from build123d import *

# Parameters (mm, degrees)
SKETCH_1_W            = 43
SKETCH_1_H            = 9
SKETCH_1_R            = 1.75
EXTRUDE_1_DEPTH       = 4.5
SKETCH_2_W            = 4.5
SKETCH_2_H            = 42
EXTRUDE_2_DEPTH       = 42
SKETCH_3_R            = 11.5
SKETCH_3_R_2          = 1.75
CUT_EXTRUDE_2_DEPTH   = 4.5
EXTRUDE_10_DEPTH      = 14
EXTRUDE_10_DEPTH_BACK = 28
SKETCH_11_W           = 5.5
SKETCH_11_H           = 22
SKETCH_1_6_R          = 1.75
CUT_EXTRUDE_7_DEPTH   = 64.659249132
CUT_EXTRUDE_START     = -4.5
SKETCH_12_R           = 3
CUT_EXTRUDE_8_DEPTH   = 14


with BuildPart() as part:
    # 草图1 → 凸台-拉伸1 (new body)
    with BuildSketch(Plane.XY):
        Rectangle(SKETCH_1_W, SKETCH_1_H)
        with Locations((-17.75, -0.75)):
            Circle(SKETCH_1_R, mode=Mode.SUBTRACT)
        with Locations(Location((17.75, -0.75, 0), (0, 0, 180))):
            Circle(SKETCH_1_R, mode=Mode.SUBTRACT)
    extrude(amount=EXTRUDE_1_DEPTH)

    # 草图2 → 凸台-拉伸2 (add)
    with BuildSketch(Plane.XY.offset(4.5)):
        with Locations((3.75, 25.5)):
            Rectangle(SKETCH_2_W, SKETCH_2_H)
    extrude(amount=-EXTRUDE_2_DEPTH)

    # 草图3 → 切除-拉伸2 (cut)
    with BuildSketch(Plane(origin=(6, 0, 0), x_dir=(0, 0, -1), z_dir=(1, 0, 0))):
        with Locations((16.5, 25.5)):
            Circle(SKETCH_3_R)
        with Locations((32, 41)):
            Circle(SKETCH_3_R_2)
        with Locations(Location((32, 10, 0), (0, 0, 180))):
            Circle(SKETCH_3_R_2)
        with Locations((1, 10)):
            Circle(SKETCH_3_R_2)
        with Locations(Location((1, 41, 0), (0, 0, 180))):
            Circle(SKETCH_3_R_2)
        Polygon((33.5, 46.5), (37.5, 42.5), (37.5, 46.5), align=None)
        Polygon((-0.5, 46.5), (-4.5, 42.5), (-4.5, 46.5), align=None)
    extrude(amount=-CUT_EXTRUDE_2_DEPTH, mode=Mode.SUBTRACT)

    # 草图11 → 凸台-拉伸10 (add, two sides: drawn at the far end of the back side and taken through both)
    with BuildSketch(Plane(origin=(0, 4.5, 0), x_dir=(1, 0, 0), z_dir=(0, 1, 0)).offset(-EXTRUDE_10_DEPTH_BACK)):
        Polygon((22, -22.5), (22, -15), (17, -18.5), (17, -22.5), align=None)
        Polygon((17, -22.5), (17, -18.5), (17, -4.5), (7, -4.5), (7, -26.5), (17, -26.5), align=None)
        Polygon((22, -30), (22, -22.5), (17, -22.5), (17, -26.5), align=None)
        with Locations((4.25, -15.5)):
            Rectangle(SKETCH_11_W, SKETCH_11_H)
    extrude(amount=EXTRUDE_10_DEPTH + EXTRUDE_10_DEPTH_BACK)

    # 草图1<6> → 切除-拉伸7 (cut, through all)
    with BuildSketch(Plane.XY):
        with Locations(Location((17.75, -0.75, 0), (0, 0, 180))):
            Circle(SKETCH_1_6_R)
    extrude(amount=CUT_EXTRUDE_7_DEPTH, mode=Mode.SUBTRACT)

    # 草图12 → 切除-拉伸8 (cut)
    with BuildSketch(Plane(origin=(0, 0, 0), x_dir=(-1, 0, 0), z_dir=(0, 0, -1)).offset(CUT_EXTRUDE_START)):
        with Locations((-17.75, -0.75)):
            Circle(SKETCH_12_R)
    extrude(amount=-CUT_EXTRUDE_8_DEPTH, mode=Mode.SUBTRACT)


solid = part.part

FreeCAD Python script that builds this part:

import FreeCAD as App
import Part
import Sketcher


def add_polygon(sketch, points):
    """Adds a closed chain of lines whose ends are joined by coincident constraints."""
    first, n = sketch.GeometryCount, len(points)
    for a, b in zip(points, points[1:] + points[:1]):
        sketch.addGeometry(Part.LineSegment(App.Vector(*a, 0), App.Vector(*b, 0)), False)
    for i in range(n):
        sketch.addConstraint(Sketcher.Constraint("Coincident", first + i, 2, first + (i + 1) % n, 1))

doc = App.newDocument("Part")
body = doc.addObject("PartDesign::Body", "Body")

sketch1 = body.newObject("Sketcher::SketchObject", "Sketch")
sketch1.AttachmentSupport = (doc.getObject("XY_Plane"), [""])
sketch1.MapMode = "FlatFace"
add_polygon(sketch1, [(-21.5, 4.5), (-21.5, -4.5), (21.5, -4.5), (21.5, 4.5)])
sketch1.addGeometry(Part.Circle(App.Vector(-17.75, -0.75, 0), App.Vector(0, 0, 1), 1.75), False)
sketch1.addGeometry(Part.Circle(App.Vector(17.75, -0.75, 0), App.Vector(0, 0, 1), 1.75), False)
sketch1.addConstraint([
    Sketcher.Constraint("Vertical", 0),
    Sketcher.Constraint("Horizontal", 1),
    Sketcher.Constraint("Vertical", 2),
    Sketcher.Constraint("Horizontal", 3),
    Sketcher.Constraint("Equal", 4, 5),
    Sketcher.Constraint("Symmetric", 0, 2, 2, 2, -1, 1),
    Sketcher.Constraint("Symmetric", 4, 3, 5, 3, -2),
    Sketcher.Constraint("Diameter", 4, 3.5),
    Sketcher.Constraint("DistanceX", 1, 1, 1, 2, 43.0),
    Sketcher.Constraint("DistanceY", 0, 2, 0, 1, 9.0),
    Sketcher.Constraint("DistanceX", 4, 3, 5, 3, 35.5),
    Sketcher.Constraint("DistanceY", 4, 3, -1, 1, 0.75),
])
pad1 = body.newObject("PartDesign::Pad", "Pad")
pad1.Profile = sketch1
pad1.Length = 4.5

sketch2 = body.newObject("Sketcher::SketchObject", "Sketch001")
sketch2.AttachmentSupport = (doc.getObject("XY_Plane"), [""])
sketch2.MapMode = "FlatFace"
sketch2.AttachmentOffset = App.Placement(App.Vector(0, 0, 4.5), App.Rotation())
add_polygon(sketch2, [(1.5, 46.5), (1.5, 4.5), (6, 4.5), (6, 46.5)])
sketch2.addConstraint([
    Sketcher.Constraint("Vertical", 0),
    Sketcher.Constraint("Horizontal", 1),
    Sketcher.Constraint("Vertical", 2),
    Sketcher.Constraint("Horizontal", 3),
    Sketcher.Constraint("DistanceY", 0, 2, 0, 1, 42.0),
    Sketcher.Constraint("DistanceX", 1, 1, 1, 2, 4.5),
    Sketcher.Constraint("DistanceX", -1, 1, 1, 2, 6.0),
    Sketcher.Constraint("DistanceY", -1, 1, 0, 2, 4.5),
])
pad2 = body.newObject("PartDesign::Pad", "Pad001")
pad2.Profile = sketch2
pad2.Length = 42
pad2.Reversed = True

sketch3 = body.newObject("Sketcher::SketchObject", "Sketch002")
sketch3.AttachmentSupport = (doc.getObject("YZ_Plane"), [""])
sketch3.MapMode = "FlatFace"
sketch3.AttachmentOffset = App.Placement(App.Vector(0, 0, 6), App.Rotation())
sketch3.addGeometry(Part.Circle(App.Vector(25.5, -16.5, 0), App.Vector(0, 0, 1), 11.5), False)
sketch3.addGeometry(Part.Circle(App.Vector(41, -32, 0), App.Vector(0, 0, 1), 1.75), False)
sketch3.addGeometry(Part.Circle(App.Vector(10, -32, 0), App.Vector(0, 0, 1), 1.75), False)
sketch3.addGeometry(Part.Circle(App.Vector(10, -1, 0), App.Vector(0, 0, 1), 1.75), False)
sketch3.addGeometry(Part.Circle(App.Vector(41, -1, 0), App.Vector(0, 0, 1), 1.75), False)
add_polygon(sketch3, [(46.5, -33.5), (42.5, -37.5), (46.5, -37.5)])
add_polygon(sketch3, [(42.5, 4.5), (46.5, 0.5), (46.5, 4.5)])
sketch3.addConstraint([
    Sketcher.Constraint("Horizontal", 6),
    Sketcher.Constraint("Vertical", 7),
    Sketcher.Constraint("Vertical", 9),
    Sketcher.Constraint("Horizontal", 10),
    Sketcher.Constraint("Equal", 1, 2),
    Sketcher.Constraint("Equal", 2, 3),
    Sketcher.Constraint("Equal", 3, 4),
    Sketcher.Constraint("Perpendicular", 5, 8),
    Sketcher.Constraint("Horizontal", 1, 3, 2, 3),
    Sketcher.Constraint("Horizontal", 3, 3, 4, 3),
    Sketcher.Constraint("Vertical", 2, 3, 3, 3),
    Sketcher.Constraint("Vertical", 1, 3, 4, 3),
    Sketcher.Constraint("Vertical", 7, 2, 8, 2),
    Sketcher.Constraint("Vertical", 5, 2, 10, 2),
    Sketcher.Constraint("Equal", 10, 7),
    Sketcher.Constraint("Diameter", 0, 23.0),
    Sketcher.Constraint("Diameter", 1, 3.5),
    Sketcher.Constraint("DistanceX", 6, 1, 6, 2, 4.0),
    Sketcher.Constraint("DistanceX", -1, 1, 1, 3, 41.0),
    Sketcher.Constraint("DistanceY", 1, 3, -1, 1, 32.0),
    Sketcher.Constraint("DistanceX", -1, 1, 2, 3, 10.0),
    Sketcher.Constraint("DistanceY", 3, 3, -1, 1, 1.0),
    Sketcher.Constraint("DistanceX", 0, 3, 5, 2, 17.0),
    Sketcher.Constraint("DistanceY", 5, 2, 0, 3, 21.0),
    Sketcher.Constraint("DistanceY", 0, 3, 8, 2, 17.0),
    Sketcher.Constraint("DistanceX", -1, 1, 0, 3, 25.5),
    Sketcher.Constraint("DistanceY", 0, 3, -1, 1, 16.5),
])
pocket1 = body.newObject("PartDesign::Pocket", "Pocket")
pocket1.Profile = sketch3
pocket1.Length = 4.5

sketch4 = body.newObject("Sketcher::SketchObject", "Sketch003")
sketch4.AttachmentSupport = (doc.getObject("XZ_Plane"), [""])
sketch4.MapMode = "FlatFace"
sketch4.AttachmentOffset = App.Placement(App.Vector(0, 0, -4.5), App.Rotation())
add_polygon(sketch4, [(22, 15), (17, 18.5), (17, 4.5), (1.5, 4.5), (1.5, 26.5), (17, 26.5), (22, 30)])
sketch4.addConstraint([
    Sketcher.Constraint("Vertical", 1),
    Sketcher.Constraint("Horizontal", 2),
    Sketcher.Constraint("Vertical", 3),
    Sketcher.Constraint("Horizontal", 4),
    Sketcher.Constraint("Vertical", 6),
    Sketcher.Constraint("Vertical", 1, 2, 4, 2),
    Sketcher.Constraint("Equal", 0, 5),
    Sketcher.Constraint("DistanceY", 1, 2, 1, 1, 14.0),
    Sketcher.Constraint("DistanceY", 3, 1, 3, 2, 22.0),
    Sketcher.Constraint("DistanceY", 6, 2, 6, 1, 15.0),
    Sketcher.Constraint("DistanceX", 2, 2, 2, 1, 15.5),
    Sketcher.Constraint("DistanceX", -1, 1, 0, 2, 17.0),
    Sketcher.Constraint("DistanceX", -1, 1, 5, 2, 22.0),
    Sketcher.Constraint("DistanceY", -1, 1, 5, 2, 30.0),
])
pad3 = body.newObject("PartDesign::Pad", "Pad002")
pad3.Profile = sketch4
pad3.Type = "TwoLengths"
pad3.Length = 14
pad3.Length2 = 28
pad3.Reversed = True

sketch5 = body.newObject("Sketcher::SketchObject", "Sketch004")
sketch5.AttachmentSupport = (doc.getObject("XY_Plane"), [""])
sketch5.MapMode = "FlatFace"
sketch5.addGeometry(Part.Circle(App.Vector(17.75, -0.75, 0), App.Vector(0, 0, 1), 1.75), False)
sketch5.addConstraint([
    Sketcher.Constraint("Diameter", 0, 3.5),
    Sketcher.Constraint("DistanceX", -1, 1, 0, 3, 17.75),
    Sketcher.Constraint("DistanceY", 0, 3, -1, 1, 0.75),
])
pocket2 = body.newObject("PartDesign::Pocket", "Pocket001")
pocket2.Profile = sketch5
pocket2.Type = "ThroughAll"
pocket2.Reversed = True

sketch6 = body.newObject("Sketcher::SketchObject", "Sketch005")
sketch6.AttachmentSupport = (doc.getObject("XY_Plane"), [""])
sketch6.MapMode = "FlatFace"
sketch6.AttachmentOffset = App.Placement(App.Vector(0, 0, 4.5), App.Rotation())
sketch6.addGeometry(Part.Circle(App.Vector(17.75, -0.75, 0), App.Vector(0, 0, 1), 3), False)
sketch6.addConstraint([
    Sketcher.Constraint("Diameter", 0, 6.0),
    Sketcher.Constraint("DistanceX", -1, 1, 0, 3, 17.75),
    Sketcher.Constraint("DistanceY", 0, 3, -1, 1, 0.75),
])
pocket3 = body.newObject("PartDesign::Pocket", "Pocket002")
pocket3.Profile = sketch6
pocket3.Length = 14
pocket3.Reversed = True

doc.recompute()
